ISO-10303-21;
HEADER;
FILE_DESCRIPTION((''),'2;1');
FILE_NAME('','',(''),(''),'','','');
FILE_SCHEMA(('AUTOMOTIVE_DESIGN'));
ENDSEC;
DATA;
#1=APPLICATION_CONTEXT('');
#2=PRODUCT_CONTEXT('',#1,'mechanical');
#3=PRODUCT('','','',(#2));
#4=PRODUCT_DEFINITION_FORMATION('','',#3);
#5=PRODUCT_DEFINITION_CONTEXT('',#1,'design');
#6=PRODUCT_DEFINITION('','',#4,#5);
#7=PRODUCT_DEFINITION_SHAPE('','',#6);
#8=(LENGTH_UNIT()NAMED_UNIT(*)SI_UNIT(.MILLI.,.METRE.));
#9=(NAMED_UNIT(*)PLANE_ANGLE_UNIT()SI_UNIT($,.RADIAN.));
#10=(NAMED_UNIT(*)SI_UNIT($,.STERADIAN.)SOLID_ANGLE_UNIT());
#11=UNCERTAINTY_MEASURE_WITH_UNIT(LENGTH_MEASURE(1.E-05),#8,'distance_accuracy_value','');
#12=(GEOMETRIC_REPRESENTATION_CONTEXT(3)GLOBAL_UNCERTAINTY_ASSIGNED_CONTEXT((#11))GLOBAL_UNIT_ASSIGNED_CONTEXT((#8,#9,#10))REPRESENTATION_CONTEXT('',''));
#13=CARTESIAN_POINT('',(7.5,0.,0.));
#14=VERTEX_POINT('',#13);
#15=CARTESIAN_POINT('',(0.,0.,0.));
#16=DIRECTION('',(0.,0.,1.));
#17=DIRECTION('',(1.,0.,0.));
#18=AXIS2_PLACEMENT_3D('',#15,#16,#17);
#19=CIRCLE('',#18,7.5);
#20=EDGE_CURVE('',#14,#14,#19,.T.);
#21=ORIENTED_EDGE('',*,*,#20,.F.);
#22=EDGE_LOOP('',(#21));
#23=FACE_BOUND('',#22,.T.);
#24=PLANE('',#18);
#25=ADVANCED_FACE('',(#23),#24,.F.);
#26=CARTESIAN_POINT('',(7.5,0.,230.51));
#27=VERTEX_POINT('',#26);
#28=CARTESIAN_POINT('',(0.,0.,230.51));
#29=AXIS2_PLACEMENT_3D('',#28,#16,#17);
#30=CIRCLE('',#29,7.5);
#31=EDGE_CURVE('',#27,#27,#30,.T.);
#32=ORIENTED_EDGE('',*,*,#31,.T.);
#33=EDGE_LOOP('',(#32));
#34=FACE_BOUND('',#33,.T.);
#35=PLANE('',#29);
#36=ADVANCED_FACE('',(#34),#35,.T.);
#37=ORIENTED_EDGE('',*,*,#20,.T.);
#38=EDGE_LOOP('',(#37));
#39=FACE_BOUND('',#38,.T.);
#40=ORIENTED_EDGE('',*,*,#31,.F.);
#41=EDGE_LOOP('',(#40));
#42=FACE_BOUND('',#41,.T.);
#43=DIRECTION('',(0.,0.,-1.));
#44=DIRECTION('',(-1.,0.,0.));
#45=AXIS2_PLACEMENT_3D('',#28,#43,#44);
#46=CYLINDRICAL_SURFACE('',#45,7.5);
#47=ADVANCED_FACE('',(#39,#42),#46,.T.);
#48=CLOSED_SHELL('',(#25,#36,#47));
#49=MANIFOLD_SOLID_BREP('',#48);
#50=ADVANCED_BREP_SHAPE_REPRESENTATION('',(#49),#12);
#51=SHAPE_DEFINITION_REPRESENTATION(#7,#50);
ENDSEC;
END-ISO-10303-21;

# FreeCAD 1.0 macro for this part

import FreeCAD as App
import Part
import Sketcher

doc = App.newDocument("Part")
params = doc.addObject("Spreadsheet::Sheet", "Params")
for row, (alias, value) in enumerate([
    ("sketch1_diameter", "15 mm"),
    ("pad1_length", "230.51 mm"),
], start=1):
    params.set(f"A{row}", alias)
    params.set(f"B{row}", "=" + value)
    params.setAlias(f"B{row}", alias)

body = doc.addObject("PartDesign::Body", "Body")

# Sketch on XY plane
sketch1 = body.newObject("Sketcher::SketchObject", "Sketch")
sketch1.AttachmentSupport = (doc.getObject("XY_Plane"), [""])
sketch1.MapMode = "FlatFace"
sketch1.addGeometry(Part.Circle(App.Vector(0, 0, 0), App.Vector(0, 0, 1), 8), False)
sketch1.addConstraint(Sketcher.Constraint("Coincident", 0, 3, -1, 1))
sketch1.addConstraint(Sketcher.Constraint("Diameter", 0, 15.0))
sketch1.setExpression("Constraints[1]", "Params.sketch1_diameter")
pad1 = body.newObject("PartDesign::Pad", "Pad")
pad1.Profile = sketch1
pad1.setExpression("Length", "Params.pad1_length")

doc.recompute()
